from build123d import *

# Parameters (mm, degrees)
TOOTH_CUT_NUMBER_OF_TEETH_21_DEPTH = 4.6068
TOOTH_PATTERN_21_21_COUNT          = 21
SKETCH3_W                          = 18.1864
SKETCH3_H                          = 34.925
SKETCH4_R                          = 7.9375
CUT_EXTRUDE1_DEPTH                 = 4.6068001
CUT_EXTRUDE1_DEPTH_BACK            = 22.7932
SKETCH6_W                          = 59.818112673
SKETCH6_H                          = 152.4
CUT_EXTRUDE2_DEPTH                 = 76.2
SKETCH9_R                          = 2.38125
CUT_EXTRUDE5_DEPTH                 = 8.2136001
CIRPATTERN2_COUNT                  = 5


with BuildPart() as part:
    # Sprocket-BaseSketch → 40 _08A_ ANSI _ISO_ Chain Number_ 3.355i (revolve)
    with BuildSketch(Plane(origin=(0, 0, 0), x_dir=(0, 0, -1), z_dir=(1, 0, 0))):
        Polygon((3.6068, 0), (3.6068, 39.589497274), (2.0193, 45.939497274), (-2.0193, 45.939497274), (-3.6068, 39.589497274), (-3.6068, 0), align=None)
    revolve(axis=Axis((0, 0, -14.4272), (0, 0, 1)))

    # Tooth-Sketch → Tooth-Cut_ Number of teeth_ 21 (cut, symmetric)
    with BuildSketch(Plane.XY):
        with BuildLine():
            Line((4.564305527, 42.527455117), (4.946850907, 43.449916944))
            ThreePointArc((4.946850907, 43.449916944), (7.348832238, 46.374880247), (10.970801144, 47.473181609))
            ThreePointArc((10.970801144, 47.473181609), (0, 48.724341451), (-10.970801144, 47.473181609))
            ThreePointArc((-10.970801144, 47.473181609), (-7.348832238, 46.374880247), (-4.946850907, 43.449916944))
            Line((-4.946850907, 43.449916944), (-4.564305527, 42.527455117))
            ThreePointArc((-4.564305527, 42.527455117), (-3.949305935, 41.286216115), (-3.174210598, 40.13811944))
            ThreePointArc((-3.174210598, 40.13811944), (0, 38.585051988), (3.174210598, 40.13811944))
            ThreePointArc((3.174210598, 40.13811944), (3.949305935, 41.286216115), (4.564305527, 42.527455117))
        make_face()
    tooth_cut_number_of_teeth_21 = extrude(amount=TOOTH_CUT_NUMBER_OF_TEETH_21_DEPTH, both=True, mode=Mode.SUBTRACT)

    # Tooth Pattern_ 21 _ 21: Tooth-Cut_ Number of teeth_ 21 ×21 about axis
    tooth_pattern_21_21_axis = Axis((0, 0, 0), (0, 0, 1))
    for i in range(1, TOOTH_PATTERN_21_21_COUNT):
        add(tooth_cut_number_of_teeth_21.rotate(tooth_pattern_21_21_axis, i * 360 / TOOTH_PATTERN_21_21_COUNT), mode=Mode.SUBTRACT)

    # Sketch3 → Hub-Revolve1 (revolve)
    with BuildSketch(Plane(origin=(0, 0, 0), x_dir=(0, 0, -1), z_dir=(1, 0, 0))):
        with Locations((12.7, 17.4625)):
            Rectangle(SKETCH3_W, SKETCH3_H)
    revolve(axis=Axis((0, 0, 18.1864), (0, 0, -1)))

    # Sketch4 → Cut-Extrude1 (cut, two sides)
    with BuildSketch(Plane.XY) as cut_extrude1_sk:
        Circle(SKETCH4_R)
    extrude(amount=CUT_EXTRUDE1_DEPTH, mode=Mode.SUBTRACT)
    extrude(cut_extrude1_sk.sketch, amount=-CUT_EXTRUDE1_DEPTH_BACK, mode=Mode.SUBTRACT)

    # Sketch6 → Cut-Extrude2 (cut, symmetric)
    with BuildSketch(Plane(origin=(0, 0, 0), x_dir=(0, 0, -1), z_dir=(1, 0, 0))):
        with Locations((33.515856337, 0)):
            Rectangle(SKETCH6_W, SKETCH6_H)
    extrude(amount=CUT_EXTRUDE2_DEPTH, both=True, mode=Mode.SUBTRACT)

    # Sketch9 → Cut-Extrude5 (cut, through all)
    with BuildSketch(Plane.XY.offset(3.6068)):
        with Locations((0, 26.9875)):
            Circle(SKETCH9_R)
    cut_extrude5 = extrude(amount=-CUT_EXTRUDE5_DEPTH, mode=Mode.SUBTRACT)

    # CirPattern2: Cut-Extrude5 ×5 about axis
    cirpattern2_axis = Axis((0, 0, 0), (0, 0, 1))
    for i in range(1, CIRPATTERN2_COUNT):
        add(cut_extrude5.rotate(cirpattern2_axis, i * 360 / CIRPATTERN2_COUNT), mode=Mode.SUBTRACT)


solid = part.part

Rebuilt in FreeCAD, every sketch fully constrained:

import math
import FreeCAD as App
import Part
import Sketcher

V = App.Vector
Q = App.Units.Quantity

doc = App.newDocument("Part")
body = doc.addObject("PartDesign::Body", "Body")

# Sketch on YZ plane
sketch1 = doc.addObject("Sketcher::SketchObject", "Sketch")
body.addObject(sketch1)
sketch1.AttachmentSupport = (doc.YZ_Plane, [""])
sketch1.MapMode = "FlatFace"
sketch1.addGeometry([
    Part.LineSegment(V(0, -3.6, 0), V(39.6, -3.6, 0)),  # 0
    Part.LineSegment(V(39.6, -3.6, 0), V(45.9, -2, 0)),  # 1
    Part.LineSegment(V(45.9, -2, 0), V(45.9, 2, 0)),  # 2
    Part.LineSegment(V(45.9, 2, 0), V(39.6, 3.6, 0)),  # 3
    Part.LineSegment(V(39.6, 3.6, 0), V(0, 3.6, 0)),  # 4
    Part.LineSegment(V(0, 3.6, 0), V(0, -3.6, 0)),  # 5
], False)
sketch1.addConstraint([
    Sketcher.Constraint("Coincident", 0, 2, 1, 1),
    Sketcher.Constraint("Coincident", 1, 2, 2, 1),
    Sketcher.Constraint("Coincident", 2, 2, 3, 1),
    Sketcher.Constraint("Coincident", 3, 2, 4, 1),
    Sketcher.Constraint("Coincident", 4, 2, 5, 1),
    Sketcher.Constraint("Coincident", 5, 2, 0, 1),
    Sketcher.Constraint("Horizontal", 0),
    Sketcher.Constraint("Vertical", 2),
    Sketcher.Constraint("Horizontal", 4),
    Sketcher.Constraint("Vertical", 5),
    Sketcher.Constraint("Symmetric", 4, 2, 5, 2, -1, 1),
    Sketcher.Constraint("Vertical", 0, 2, 3, 2),
    Sketcher.Constraint("Equal", 1, 3),
    Sketcher.Constraint("DistanceY", 2, 1, 2, 2, Q("0.159 in")),
    Sketcher.Constraint("DistanceY", 5, 2, 5, 1, Q("0.284 in")),
    Sketcher.Constraint("DistanceX", 0, 2, 1, 2, Q("0.25 in")),
    Sketcher.Constraint("DistanceX", 0, 1, 0, 2, 39.589497),
])
revolution = doc.addObject("PartDesign::Revolution", "Revolution")
body.addObject(revolution)
revolution.Profile = sketch1
revolution.ReferenceAxis = (sketch1, ["V_Axis"])
revolution.Angle = 360

# Sketch on XY plane
sketch2 = doc.addObject("Sketcher::SketchObject", "Sketch001")
body.addObject(sketch2)
sketch2.AttachmentSupport = (doc.XY_Plane, [""])
sketch2.MapMode = "FlatFace"
sketch2.addGeometry([
    Part.LineSegment(V(4.6, 42.5, 0), V(4.9, 43.4, 0)),  # 0
    Part.ArcOfCircle(Part.Circle(V(11, 41, 0), V(0, 0, 1), 6.5), math.radians(90), math.radians(157)),  # 1
    Part.ArcOfCircle(Part.Circle(V(0, 0, 0), V(0, 0, 1), 48.7), math.radians(77), math.radians(103)),  # 2
    Part.ArcOfCircle(Part.Circle(V(-11, 41, 0), V(0, 0, 1), 6.5), math.radians(23), math.radians(90)),  # 3
    Part.LineSegment(V(-4.9, 43.4, 0), V(-4.6, 42.5, 0)),  # 4
    Part.ArcOfCircle(Part.Circle(V(5, 46.5, 0), V(0, 0, 1), 10.4), math.radians(-157.48), math.radians(-142.14)),  # 5
    Part.ArcOfCircle(Part.Circle(V(0, 42.6, 0), V(0, 0, 1), 4), math.radians(-142), math.radians(-38)),  # 6
    Part.ArcOfCircle(Part.Circle(V(-5, 46.5, 0), V(0, 0, 1), 10.4), math.radians(-37.86), math.radians(-22.52)),  # 7
], False)
sketch2.addConstraint([
    Sketcher.Constraint("Tangent", 0, 2, 1, 2),
    Sketcher.Constraint("Coincident", 1, 1, 2, 1),
    Sketcher.Constraint("Coincident", 2, 2, 3, 2),
    Sketcher.Constraint("Tangent", 3, 1, 4, 1),
    Sketcher.Constraint("Tangent", 4, 2, 5, 1),
    Sketcher.Constraint("Tangent", 5, 2, 6, 1),
    Sketcher.Constraint("Tangent", 6, 2, 7, 1),
    Sketcher.Constraint("Tangent", 7, 2, 0, 1),
    Sketcher.Constraint("Coincident", 2, 3, -1, 1),
    Sketcher.Constraint("Equal", 1, 3),
    Sketcher.Constraint("Equal", 5, 7),
    Sketcher.Constraint("Symmetric", 1, 3, 3, 3, -2),
    Sketcher.Constraint("Symmetric", 5, 3, 7, 3, -2),
    Sketcher.Constraint("Vertical", 3, 3, 2, 2),
    Sketcher.Constraint("Radius", 1, 6.5214),
    Sketcher.Constraint("Radius", 2, 48.724341),
    Sketcher.Constraint("Radius", 5, 10.360152),
    Sketcher.Constraint("Radius", 6, 4.020312),
    Sketcher.Constraint("DistanceX", -1, 1, 1, 3, 10.970801),
    Sketcher.Constraint("DistanceX", 3, 1, 0, 2, 9.893702),
    Sketcher.Constraint("DistanceX", -1, 1, 5, 3, 5.005579),
])
pocket1 = doc.addObject("PartDesign::Pocket", "Pocket")
body.addObject(pocket1)
pocket1.Profile = sketch2
pocket1.Length = 9.2136
pocket1.Midplane = True
doc.recompute()

polarpattern = doc.addObject("PartDesign::PolarPattern", "PolarPattern")
body.addObject(polarpattern)
polarpattern.Originals = [pocket1]
polarpattern.Axis = (doc.Z_Axis, [""])
polarpattern.Angle = 360
polarpattern.Occurrences = 21
body.Tip = polarpattern

# Sketch on YZ plane
sketch3 = doc.addObject("Sketcher::SketchObject", "Sketch002")
body.addObject(sketch3)
sketch3.AttachmentSupport = (doc.YZ_Plane, [""])
sketch3.MapMode = "FlatFace"
sketch3.addGeometry([
    Part.LineSegment(V(35, -4, 0), V(0, -4, 0)),
    Part.LineSegment(V(0, -4, 0), V(0, -22, 0)),
    Part.LineSegment(V(0, -22, 0), V(35, -22, 0)),
    Part.LineSegment(V(35, -22, 0), V(35, -4, 0)),
], False)
sketch3.addConstraint([
    Sketcher.Constraint("Coincident", 0, 2, 1, 1),
    Sketcher.Constraint("Coincident", 1, 2, 2, 1),
    Sketcher.Constraint("Coincident", 2, 2, 3, 1),
    Sketcher.Constraint("Coincident", 3, 2, 0, 1),
    Sketcher.Constraint("Horizontal", 0),
    Sketcher.Constraint("Vertical", 1),
    Sketcher.Constraint("Horizontal", 2),
    Sketcher.Constraint("Vertical", 3),
    Sketcher.Constraint("PointOnObject", 0, 2, -2),
    Sketcher.Constraint("DistanceX", 0, 2, 0, 1, Q("1.375 in")),
    Sketcher.Constraint("DistanceY", 1, 2, 1, 1, Q("0.716 in")),
    Sketcher.Constraint("DistanceY", 0, 2, -1, 1, Q("0.142 in")),
])
revolution2 = doc.addObject("PartDesign::Revolution", "Revolution001")
body.addObject(revolution2)
revolution2.Profile = sketch3
revolution2.ReferenceAxis = (sketch3, ["V_Axis"])
revolution2.Angle = 360

# Sketch on XY plane
sketch4 = doc.addObject("Sketcher::SketchObject", "Sketch003")
body.addObject(sketch4)
sketch4.AttachmentSupport = (doc.XY_Plane, [""])
sketch4.MapMode = "FlatFace"
sketch4.addGeometry(Part.Circle(V(0, 0, 0), V(0, 0, 1), 8), False)
sketch4.addConstraint([
    Sketcher.Constraint("Coincident", 0, 3, -1, 1),
    Sketcher.Constraint("Diameter", 0, Q("0.625 in")),
])
pocket2 = doc.addObject("PartDesign::Pocket", "Pocket001")
body.addObject(pocket2)
pocket2.Profile = sketch4
pocket2.Type = "ThroughAll"
pocket2.Midplane = True

# Sketch on YZ plane
sketch5 = doc.addObject("Sketcher::SketchObject", "Sketch004")
body.addObject(sketch5)
sketch5.AttachmentSupport = (doc.YZ_Plane, [""])
sketch5.MapMode = "FlatFace"
sketch5.addGeometry([
    Part.LineSegment(V(76, -4, 0), V(-76, -4, 0)),
    Part.LineSegment(V(-76, -4, 0), V(-76, -63, 0)),
    Part.LineSegment(V(-76, -63, 0), V(76, -63, 0)),
    Part.LineSegment(V(76, -63, 0), V(76, -4, 0)),
], False)
sketch5.addConstraint([
    Sketcher.Constraint("Coincident", 0, 2, 1, 1),
    Sketcher.Constraint("Coincident", 1, 2, 2, 1),
    Sketcher.Constraint("Coincident", 2, 2, 3, 1),
    Sketcher.Constraint("Coincident", 3, 2, 0, 1),
    Sketcher.Constraint("Horizontal", 0),
    Sketcher.Constraint("Vertical", 1),
    Sketcher.Constraint("Horizontal", 2),
    Sketcher.Constraint("Vertical", 3),
    Sketcher.Constraint("DistanceX", 0, 2, 0, 1, Q("6 in")),
    Sketcher.Constraint("DistanceX", 0, 2, -1, 1, Q("3 in")),
    Sketcher.Constraint("DistanceY", 0, 2, -1, 1, Q("0.142 in")),
    Sketcher.Constraint("DistanceY", 1, 2, 1, 1, 59.818113),
])
pocket3 = doc.addObject("PartDesign::Pocket", "Pocket002")
body.addObject(pocket3)
pocket3.Profile = sketch5
pocket3.Length = Q("6 in")
pocket3.Midplane = True

# Sketch on XY plane
sketch6 = doc.addObject("Sketcher::SketchObject", "Sketch005")
body.addObject(sketch6)
sketch6.AttachmentSupport = (doc.XY_Plane, [""])
sketch6.MapMode = "FlatFace"
sketch6.AttachmentOffset = App.Placement(V(0, 0, 0.142 * 25.4), App.Rotation())
sketch6.addGeometry(Part.Circle(V(0, 27, 0), V(0, 0, 1), 2.4), False)
sketch6.addConstraint([
    Sketcher.Constraint("PointOnObject", 0, 3, -2),
    Sketcher.Constraint("Diameter", 0, Q("0.1875 in")),
    Sketcher.Constraint("DistanceY", -1, 1, 0, 3, Q("1.0625 in")),
])
pocket4 = doc.addObject("PartDesign::Pocket", "Pocket003")
body.addObject(pocket4)
pocket4.Profile = sketch6
pocket4.Type = "ThroughAll"
doc.recompute()

polarpattern2 = doc.addObject("PartDesign::PolarPattern", "PolarPattern001")
body.addObject(polarpattern2)
polarpattern2.Originals = [pocket4]
polarpattern2.Axis = (doc.Z_Axis, [""])
polarpattern2.Angle = 360
polarpattern2.Occurrences = 5
body.Tip = polarpattern2

doc.recompute()
